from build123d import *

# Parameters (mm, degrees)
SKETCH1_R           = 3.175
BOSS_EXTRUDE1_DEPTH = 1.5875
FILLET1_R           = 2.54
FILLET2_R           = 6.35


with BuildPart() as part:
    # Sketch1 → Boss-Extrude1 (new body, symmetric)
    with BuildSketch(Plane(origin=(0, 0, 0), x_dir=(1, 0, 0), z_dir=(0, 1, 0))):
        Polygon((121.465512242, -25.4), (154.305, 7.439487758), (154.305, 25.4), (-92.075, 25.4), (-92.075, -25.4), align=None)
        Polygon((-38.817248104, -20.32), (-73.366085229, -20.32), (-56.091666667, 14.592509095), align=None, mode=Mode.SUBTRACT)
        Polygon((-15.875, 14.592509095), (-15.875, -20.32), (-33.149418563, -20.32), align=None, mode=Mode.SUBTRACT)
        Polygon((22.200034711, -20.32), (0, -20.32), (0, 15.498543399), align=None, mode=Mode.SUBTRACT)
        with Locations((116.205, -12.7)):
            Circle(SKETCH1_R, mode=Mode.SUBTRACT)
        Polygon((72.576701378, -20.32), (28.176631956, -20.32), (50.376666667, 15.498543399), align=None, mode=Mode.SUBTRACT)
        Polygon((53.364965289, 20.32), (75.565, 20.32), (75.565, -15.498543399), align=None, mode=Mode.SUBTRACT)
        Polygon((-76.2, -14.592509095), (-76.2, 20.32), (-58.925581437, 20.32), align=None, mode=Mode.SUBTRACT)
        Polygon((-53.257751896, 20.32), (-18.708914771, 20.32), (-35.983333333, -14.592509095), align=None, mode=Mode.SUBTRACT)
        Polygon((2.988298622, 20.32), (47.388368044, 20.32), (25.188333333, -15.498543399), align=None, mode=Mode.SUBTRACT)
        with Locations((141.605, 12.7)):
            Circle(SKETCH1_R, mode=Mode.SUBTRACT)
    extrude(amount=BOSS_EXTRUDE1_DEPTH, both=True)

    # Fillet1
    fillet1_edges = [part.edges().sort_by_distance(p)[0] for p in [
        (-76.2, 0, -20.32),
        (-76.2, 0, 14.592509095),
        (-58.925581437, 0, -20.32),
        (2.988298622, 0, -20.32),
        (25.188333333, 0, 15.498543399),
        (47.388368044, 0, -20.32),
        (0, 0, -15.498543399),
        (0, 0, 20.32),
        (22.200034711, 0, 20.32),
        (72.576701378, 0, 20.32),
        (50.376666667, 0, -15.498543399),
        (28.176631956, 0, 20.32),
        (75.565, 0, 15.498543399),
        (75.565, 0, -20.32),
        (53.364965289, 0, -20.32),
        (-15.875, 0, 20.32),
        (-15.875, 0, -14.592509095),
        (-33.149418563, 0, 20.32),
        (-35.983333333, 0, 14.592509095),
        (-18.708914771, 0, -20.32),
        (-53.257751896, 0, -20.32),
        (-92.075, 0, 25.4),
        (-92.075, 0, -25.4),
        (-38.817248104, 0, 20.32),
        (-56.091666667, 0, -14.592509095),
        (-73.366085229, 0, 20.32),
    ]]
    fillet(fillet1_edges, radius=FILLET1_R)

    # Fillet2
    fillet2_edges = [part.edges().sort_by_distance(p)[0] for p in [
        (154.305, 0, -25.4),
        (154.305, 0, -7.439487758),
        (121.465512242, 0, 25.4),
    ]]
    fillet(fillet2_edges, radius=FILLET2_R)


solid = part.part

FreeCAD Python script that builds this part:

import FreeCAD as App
import Part
import Sketcher
from FreeCAD import Vector
Q = App.Units.Quantity


def edges_at(feature, points):
    """Names of the edges that pass closest to the given points."""
    edges = feature.Shape.Edges
    near = lambda p: min(range(len(edges)), key=lambda i: edges[i].distToShape(Part.Vertex(*p))[0])
    return sorted({f"Edge{near(p) + 1}" for p in points})

doc = App.newDocument("Part")
body = doc.addObject("PartDesign::Body", "Body")

# Sketch on XZ plane
sketch1 = body.newObject("Sketcher::SketchObject", "Sketch")
sketch1.AttachmentSupport = (doc.getObject("XZ_Plane"), [""])
sketch1.MapMode = "FlatFace"
sketch1.addGeometry(Part.LineSegment(Vector(121.465512, 25.4, 0), Vector(154.305, -7.439488, 0)), False)
sketch1.addGeometry(Part.LineSegment(Vector(154.305, -7.439488, 0), Vector(154.305, -25.4, 0)), False)
sketch1.addGeometry(Part.LineSegment(Vector(154.305, -25.4, 0), Vector(-92.075, -25.4, 0)), False)
sketch1.addGeometry(Part.LineSegment(Vector(-92.075, -25.4, 0), Vector(-92.075, 25.4, 0)), False)
sketch1.addGeometry(Part.LineSegment(Vector(-92.075, 25.4, 0), Vector(121.465512, 25.4, 0)), False)
sketch1.addGeometry(Part.LineSegment(Vector(-56.091667, -14.592509, 0), Vector(-38.817248, 20.32, 0)), False)
sketch1.addGeometry(Part.LineSegment(Vector(-38.817248, 20.32, 0), Vector(-73.366085, 20.32, 0)), False)
sketch1.addGeometry(Part.LineSegment(Vector(-73.366085, 20.32, 0), Vector(-56.091667, -14.592509, 0)), False)
sketch1.addGeometry(Part.LineSegment(Vector(-33.149419, 20.32, 0), Vector(-15.875, -14.592509, 0)), False)
sketch1.addGeometry(Part.LineSegment(Vector(-15.875, -14.592509, 0), Vector(-15.875, 20.32, 0)), False)
sketch1.addGeometry(Part.LineSegment(Vector(-15.875, 20.32, 0), Vector(-33.149419, 20.32, 0)), False)
sketch1.addGeometry(Part.LineSegment(Vector(0, -15.498543, 0), Vector(22.200035, 20.32, 0)), False)
sketch1.addGeometry(Part.LineSegment(Vector(22.200035, 20.32, 0), Vector(0, 20.32, 0)), False)
sketch1.addGeometry(Part.LineSegment(Vector(0, 20.32, 0), Vector(0, -15.498543, 0)), False)
sketch1.addGeometry(Part.Circle(Vector(116.205, 12.7, 0), Vector(0, 0, 1), 3.175), False)
sketch1.addGeometry(Part.LineSegment(Vector(50.376667, -15.498543, 0), Vector(72.576701, 20.32, 0)), False)
sketch1.addGeometry(Part.LineSegment(Vector(72.576701, 20.32, 0), Vector(28.176632, 20.32, 0)), False)
sketch1.addGeometry(Part.LineSegment(Vector(28.176632, 20.32, 0), Vector(50.376667, -15.498543, 0)), False)
sketch1.addGeometry(Part.LineSegment(Vector(-58.925581, -20.32, 0), Vector(-76.2, 14.592509, 0)), False)
sketch1.addGeometry(Part.LineSegment(Vector(-76.2, 14.592509, 0), Vector(-76.2, -20.32, 0)), False)
sketch1.addGeometry(Part.LineSegment(Vector(-76.2, -20.32, 0), Vector(-58.925581, -20.32, 0)), False)
sketch1.addGeometry(Part.LineSegment(Vector(-35.983333, 14.592509, 0), Vector(-53.257752, -20.32, 0)), False)
sketch1.addGeometry(Part.LineSegment(Vector(-53.257752, -20.32, 0), Vector(-18.708915, -20.32, 0)), False)
sketch1.addGeometry(Part.LineSegment(Vector(-18.708915, -20.32, 0), Vector(-35.983333, 14.592509, 0)), False)
sketch1.addGeometry(Part.LineSegment(Vector(25.188333, 15.498543, 0), Vector(2.988299, -20.32, 0)), False)
sketch1.addGeometry(Part.LineSegment(Vector(2.988299, -20.32, 0), Vector(47.388368, -20.32, 0)), False)
sketch1.addGeometry(Part.LineSegment(Vector(47.388368, -20.32, 0), Vector(25.188333, 15.498543, 0)), False)
sketch1.addGeometry(Part.LineSegment(Vector(75.565, 15.498543, 0), Vector(53.364965, -20.32, 0)), False)
sketch1.addGeometry(Part.LineSegment(Vector(53.364965, -20.32, 0), Vector(75.565, -20.32, 0)), False)
sketch1.addGeometry(Part.LineSegment(Vector(75.565, -20.32, 0), Vector(75.565, 15.498543, 0)), False)
sketch1.addGeometry(Part.Circle(Vector(141.605, -12.7, 0), Vector(0, 0, 1), 3.175), False)
sketch1.addConstraint(Sketcher.Constraint("Coincident", 0, 2, 1, 1))
sketch1.addConstraint(Sketcher.Constraint("Coincident", 1, 2, 2, 1))
sketch1.addConstraint(Sketcher.Constraint("Coincident", 2, 2, 3, 1))
sketch1.addConstraint(Sketcher.Constraint("Coincident", 3, 2, 4, 1))
sketch1.addConstraint(Sketcher.Constraint("Coincident", 4, 2, 0, 1))
sketch1.addConstraint(Sketcher.Constraint("Coincident", 5, 2, 6, 1))
sketch1.addConstraint(Sketcher.Constraint("Coincident", 6, 2, 7, 1))
sketch1.addConstraint(Sketcher.Constraint("Coincident", 7, 2, 5, 1))
sketch1.addConstraint(Sketcher.Constraint("Coincident", 8, 2, 9, 1))
sketch1.addConstraint(Sketcher.Constraint("Coincident", 9, 2, 10, 1))
sketch1.addConstraint(Sketcher.Constraint("Coincident", 10, 2, 8, 1))
sketch1.addConstraint(Sketcher.Constraint("Coincident", 11, 2, 12, 1))
sketch1.addConstraint(Sketcher.Constraint("Coincident", 12, 2, 13, 1))
sketch1.addConstraint(Sketcher.Constraint("Coincident", 13, 2, 11, 1))
sketch1.addConstraint(Sketcher.Constraint("Coincident", 15, 2, 16, 1))
sketch1.addConstraint(Sketcher.Constraint("Coincident", 16, 2, 17, 1))
sketch1.addConstraint(Sketcher.Constraint("Coincident", 17, 2, 15, 1))
sketch1.addConstraint(Sketcher.Constraint("Coincident", 18, 2, 19, 1))
sketch1.addConstraint(Sketcher.Constraint("Coincident", 19, 2, 20, 1))
sketch1.addConstraint(Sketcher.Constraint("Coincident", 20, 2, 18, 1))
sketch1.addConstraint(Sketcher.Constraint("Coincident", 21, 2, 22, 1))
sketch1.addConstraint(Sketcher.Constraint("Coincident", 22, 2, 23, 1))
sketch1.addConstraint(Sketcher.Constraint("Coincident", 23, 2, 21, 1))
sketch1.addConstraint(Sketcher.Constraint("Coincident", 24, 2, 25, 1))
sketch1.addConstraint(Sketcher.Constraint("Coincident", 25, 2, 26, 1))
sketch1.addConstraint(Sketcher.Constraint("Coincident", 26, 2, 24, 1))
sketch1.addConstraint(Sketcher.Constraint("Coincident", 27, 2, 28, 1))
sketch1.addConstraint(Sketcher.Constraint("Coincident", 28, 2, 29, 1))
sketch1.addConstraint(Sketcher.Constraint("Coincident", 29, 2, 27, 1))
sketch1.addConstraint(Sketcher.Constraint("Vertical", 1))
sketch1.addConstraint(Sketcher.Constraint("Horizontal", 2))
sketch1.addConstraint(Sketcher.Constraint("Vertical", 3))
sketch1.addConstraint(Sketcher.Constraint("Horizontal", 4))
sketch1.addConstraint(Sketcher.Constraint("Horizontal", 6))
sketch1.addConstraint(Sketcher.Constraint("Vertical", 9))
sketch1.addConstraint(Sketcher.Constraint("Horizontal", 10))
sketch1.addConstraint(Sketcher.Constraint("Horizontal", 12))
sketch1.addConstraint(Sketcher.Constraint("Vertical", 13))
sketch1.addConstraint(Sketcher.Constraint("Horizontal", 16))
sketch1.addConstraint(Sketcher.Constraint("Vertical", 19))
sketch1.addConstraint(Sketcher.Constraint("Horizontal", 20))
sketch1.addConstraint(Sketcher.Constraint("Horizontal", 22))
sketch1.addConstraint(Sketcher.Constraint("Horizontal", 25))
sketch1.addConstraint(Sketcher.Constraint("Horizontal", 28))
sketch1.addConstraint(Sketcher.Constraint("Vertical", 29))
sketch1.addConstraint(Sketcher.Constraint("Equal", 14, 30))
sketch1.addConstraint(Sketcher.Constraint("PointOnObject", 12, 2, -2))
sketch1.addConstraint(Sketcher.Constraint("Parallel", 7, 8))
sketch1.addConstraint(Sketcher.Constraint("Parallel", 11, 15))
sketch1.addConstraint(Sketcher.Constraint("Parallel", 8, 18))
sketch1.addConstraint(Sketcher.Constraint("Parallel", 5, 21))
sketch1.addConstraint(Sketcher.Constraint("Parallel", 18, 23))
sketch1.addConstraint(Sketcher.Constraint("Parallel", 15, 24))
sketch1.addConstraint(Sketcher.Constraint("Parallel", 17, 26))
sketch1.addConstraint(Sketcher.Constraint("Parallel", 24, 27))
sketch1.addConstraint(Sketcher.Constraint("Horizontal", 7, 2, 8, 2))
sketch1.addConstraint(Sketcher.Constraint("Horizontal", 6, 2, 9, 2))
sketch1.addConstraint(Sketcher.Constraint("Horizontal", 10, 2, 11, 2))
sketch1.addConstraint(Sketcher.Constraint("Horizontal", 12, 2, 15, 2))
sketch1.addConstraint(Sketcher.Constraint("Horizontal", 13, 2, 17, 2))
sketch1.addConstraint(Sketcher.Constraint("Horizontal", 20, 2, 21, 2))
sketch1.addConstraint(Sketcher.Constraint("Horizontal", 18, 2, 23, 2))
sketch1.addConstraint(Sketcher.Constraint("Horizontal", 22, 2, 24, 2))
sketch1.addConstraint(Sketcher.Constraint("Horizontal", 25, 2, 27, 2))
sketch1.addConstraint(Sketcher.Constraint("Horizontal", 26, 2, 29, 2))
sketch1.addConstraint(Sketcher.Constraint("Equal", 10, 20))
sketch1.addConstraint(Sketcher.Constraint("Equal", 16, 25))
sketch1.addConstraint(Sketcher.Constraint("Equal", 5, 7))
sketch1.addConstraint(Sketcher.Constraint("Equal", 15, 17))
sketch1.addConstraint(Sketcher.Constraint("Diameter", 14, Q("0.25 in")))
sketch1.addConstraint(Sketcher.Constraint("DistanceY", 3, 1, 3, 2, Q("2 in")))
sketch1.addConstraint(Sketcher.Constraint("DistanceX", 2, 2, 2, 1, Q("9.7 in")))
sketch1.addConstraint(Sketcher.Constraint("DistanceY", 1, 2, -1, 1, Q("1 in")))
sketch1.addConstraint(Sketcher.Constraint("DistanceX", 18, 2, -1, 1, Q("3 in")))
sketch1.addConstraint(Sketcher.Constraint("Angle", 0, Q("-45 deg")))
sketch1.addConstraint(Sketcher.Constraint("DistanceX", 14, 3, 30, 3, Q("1 in")))
sketch1.addConstraint(Sketcher.Constraint("DistanceY", 30, 3, 14, 3, Q("1 in")))
sketch1.addConstraint(Sketcher.Constraint("DistanceX", 2, 2, 8, 2, Q("3 in")))
sketch1.addConstraint(Sketcher.Constraint("DistanceY", -1, 1, 14, 3, Q("0.5 in")))
sketch1.addConstraint(Sketcher.Constraint("DistanceY", -1, 1, 5, 2, Q("0.8 in")))
sketch1.addConstraint(Sketcher.Constraint("DistanceY", 19, 2, -1, 1, Q("0.8 in")))
sketch1.addConstraint(Sketcher.Constraint("DistanceX", 30, 3, 0, 2, Q("0.5 in")))
sketch1.addConstraint(Sketcher.Constraint("DistanceX", 28, 2, 14, 3, Q("1.6 in")))
sketch1.addConstraint(Sketcher.Constraint("DistanceX", -1, 1, 14, 3, Q("4.575 in")))
sketch1.addConstraint(Sketcher.Constraint("DistanceX", 10, 2, 10, 1, Q("17.274419 mm")))
sketch1.addConstraint(Sketcher.Constraint("DistanceX", 16, 2, 16, 1, Q("44.400069 mm")))
sketch1.addConstraint(Sketcher.Constraint("DistanceY", 9, 1, 9, 2, Q("34.912509 mm")))
sketch1.addConstraint(Sketcher.Constraint("DistanceX", -1, 1, 15, 2, Q("72.576701 mm")))
sketch1.addConstraint(Sketcher.Constraint("DistanceX", -1, 1, 24, 2, Q("2.988299 mm")))
sketch1.addConstraint(Sketcher.Constraint("DistanceX", 7, 2, 11, 2, Q("78.291701 mm")))
sketch1.addConstraint(Sketcher.Constraint("Distance", 0, Q("46.442049 mm")))
sketch1.addConstraint(Sketcher.Constraint("DistanceY", 13, 2, 13, 1, Q("35.818543 mm")))
sketch1.addConstraint(Sketcher.Constraint("DistanceX", 21, 2, -1, 1, Q("53.257752 mm")))
pad1 = body.newObject("PartDesign::Pad", "Pad")
pad1.Profile = sketch1
pad1.Length = Q("0.125 in")
pad1.Midplane = True
doc.recompute()

fillet = body.newObject("PartDesign::Fillet", "Fillet")
fillet.Base = (pad1, edges_at(pad1, [
    (-76.2, 0, -20.32),
    (-76.2, 0, 14.593),
    (-58.926, 0, -20.32),
    (2.988, 0, -20.32),
    (25.188, 0, 15.499),
    (47.388, 0, -20.32),
    (0, 0, -15.499),
    (0, 0, 20.32),
    (22.2, 0, 20.32),
    (72.577, 0, 20.32),
    (50.377, 0, -15.499),
    (28.177, 0, 20.32),
    (75.565, 0, 15.499),
    (75.565, 0, -20.32),
    (53.365, 0, -20.32),
    (-15.875, 0, 20.32),
    (-15.875, 0, -14.593),
    (-33.149, 0, 20.32),
    (-35.983, 0, 14.593),
    (-18.709, 0, -20.32),
    (-53.258, 0, -20.32),
    (-92.075, 0, 25.4),
    (-92.075, 0, -25.4),
    (-38.817, 0, 20.32),
    (-56.092, 0, -14.593),
    (-73.366, 0, 20.32),
]))
fillet.Radius = Q("0.1 in")
doc.recompute()

fillet2 = body.newObject("PartDesign::Fillet", "Fillet001")
fillet2.Base = (fillet, edges_at(fillet, [(154.305, 0, -25.4), (154.305, 0, -7.439), (121.466, 0, 25.4)]))
fillet2.Radius = Q("0.25 in")

doc.recompute()
